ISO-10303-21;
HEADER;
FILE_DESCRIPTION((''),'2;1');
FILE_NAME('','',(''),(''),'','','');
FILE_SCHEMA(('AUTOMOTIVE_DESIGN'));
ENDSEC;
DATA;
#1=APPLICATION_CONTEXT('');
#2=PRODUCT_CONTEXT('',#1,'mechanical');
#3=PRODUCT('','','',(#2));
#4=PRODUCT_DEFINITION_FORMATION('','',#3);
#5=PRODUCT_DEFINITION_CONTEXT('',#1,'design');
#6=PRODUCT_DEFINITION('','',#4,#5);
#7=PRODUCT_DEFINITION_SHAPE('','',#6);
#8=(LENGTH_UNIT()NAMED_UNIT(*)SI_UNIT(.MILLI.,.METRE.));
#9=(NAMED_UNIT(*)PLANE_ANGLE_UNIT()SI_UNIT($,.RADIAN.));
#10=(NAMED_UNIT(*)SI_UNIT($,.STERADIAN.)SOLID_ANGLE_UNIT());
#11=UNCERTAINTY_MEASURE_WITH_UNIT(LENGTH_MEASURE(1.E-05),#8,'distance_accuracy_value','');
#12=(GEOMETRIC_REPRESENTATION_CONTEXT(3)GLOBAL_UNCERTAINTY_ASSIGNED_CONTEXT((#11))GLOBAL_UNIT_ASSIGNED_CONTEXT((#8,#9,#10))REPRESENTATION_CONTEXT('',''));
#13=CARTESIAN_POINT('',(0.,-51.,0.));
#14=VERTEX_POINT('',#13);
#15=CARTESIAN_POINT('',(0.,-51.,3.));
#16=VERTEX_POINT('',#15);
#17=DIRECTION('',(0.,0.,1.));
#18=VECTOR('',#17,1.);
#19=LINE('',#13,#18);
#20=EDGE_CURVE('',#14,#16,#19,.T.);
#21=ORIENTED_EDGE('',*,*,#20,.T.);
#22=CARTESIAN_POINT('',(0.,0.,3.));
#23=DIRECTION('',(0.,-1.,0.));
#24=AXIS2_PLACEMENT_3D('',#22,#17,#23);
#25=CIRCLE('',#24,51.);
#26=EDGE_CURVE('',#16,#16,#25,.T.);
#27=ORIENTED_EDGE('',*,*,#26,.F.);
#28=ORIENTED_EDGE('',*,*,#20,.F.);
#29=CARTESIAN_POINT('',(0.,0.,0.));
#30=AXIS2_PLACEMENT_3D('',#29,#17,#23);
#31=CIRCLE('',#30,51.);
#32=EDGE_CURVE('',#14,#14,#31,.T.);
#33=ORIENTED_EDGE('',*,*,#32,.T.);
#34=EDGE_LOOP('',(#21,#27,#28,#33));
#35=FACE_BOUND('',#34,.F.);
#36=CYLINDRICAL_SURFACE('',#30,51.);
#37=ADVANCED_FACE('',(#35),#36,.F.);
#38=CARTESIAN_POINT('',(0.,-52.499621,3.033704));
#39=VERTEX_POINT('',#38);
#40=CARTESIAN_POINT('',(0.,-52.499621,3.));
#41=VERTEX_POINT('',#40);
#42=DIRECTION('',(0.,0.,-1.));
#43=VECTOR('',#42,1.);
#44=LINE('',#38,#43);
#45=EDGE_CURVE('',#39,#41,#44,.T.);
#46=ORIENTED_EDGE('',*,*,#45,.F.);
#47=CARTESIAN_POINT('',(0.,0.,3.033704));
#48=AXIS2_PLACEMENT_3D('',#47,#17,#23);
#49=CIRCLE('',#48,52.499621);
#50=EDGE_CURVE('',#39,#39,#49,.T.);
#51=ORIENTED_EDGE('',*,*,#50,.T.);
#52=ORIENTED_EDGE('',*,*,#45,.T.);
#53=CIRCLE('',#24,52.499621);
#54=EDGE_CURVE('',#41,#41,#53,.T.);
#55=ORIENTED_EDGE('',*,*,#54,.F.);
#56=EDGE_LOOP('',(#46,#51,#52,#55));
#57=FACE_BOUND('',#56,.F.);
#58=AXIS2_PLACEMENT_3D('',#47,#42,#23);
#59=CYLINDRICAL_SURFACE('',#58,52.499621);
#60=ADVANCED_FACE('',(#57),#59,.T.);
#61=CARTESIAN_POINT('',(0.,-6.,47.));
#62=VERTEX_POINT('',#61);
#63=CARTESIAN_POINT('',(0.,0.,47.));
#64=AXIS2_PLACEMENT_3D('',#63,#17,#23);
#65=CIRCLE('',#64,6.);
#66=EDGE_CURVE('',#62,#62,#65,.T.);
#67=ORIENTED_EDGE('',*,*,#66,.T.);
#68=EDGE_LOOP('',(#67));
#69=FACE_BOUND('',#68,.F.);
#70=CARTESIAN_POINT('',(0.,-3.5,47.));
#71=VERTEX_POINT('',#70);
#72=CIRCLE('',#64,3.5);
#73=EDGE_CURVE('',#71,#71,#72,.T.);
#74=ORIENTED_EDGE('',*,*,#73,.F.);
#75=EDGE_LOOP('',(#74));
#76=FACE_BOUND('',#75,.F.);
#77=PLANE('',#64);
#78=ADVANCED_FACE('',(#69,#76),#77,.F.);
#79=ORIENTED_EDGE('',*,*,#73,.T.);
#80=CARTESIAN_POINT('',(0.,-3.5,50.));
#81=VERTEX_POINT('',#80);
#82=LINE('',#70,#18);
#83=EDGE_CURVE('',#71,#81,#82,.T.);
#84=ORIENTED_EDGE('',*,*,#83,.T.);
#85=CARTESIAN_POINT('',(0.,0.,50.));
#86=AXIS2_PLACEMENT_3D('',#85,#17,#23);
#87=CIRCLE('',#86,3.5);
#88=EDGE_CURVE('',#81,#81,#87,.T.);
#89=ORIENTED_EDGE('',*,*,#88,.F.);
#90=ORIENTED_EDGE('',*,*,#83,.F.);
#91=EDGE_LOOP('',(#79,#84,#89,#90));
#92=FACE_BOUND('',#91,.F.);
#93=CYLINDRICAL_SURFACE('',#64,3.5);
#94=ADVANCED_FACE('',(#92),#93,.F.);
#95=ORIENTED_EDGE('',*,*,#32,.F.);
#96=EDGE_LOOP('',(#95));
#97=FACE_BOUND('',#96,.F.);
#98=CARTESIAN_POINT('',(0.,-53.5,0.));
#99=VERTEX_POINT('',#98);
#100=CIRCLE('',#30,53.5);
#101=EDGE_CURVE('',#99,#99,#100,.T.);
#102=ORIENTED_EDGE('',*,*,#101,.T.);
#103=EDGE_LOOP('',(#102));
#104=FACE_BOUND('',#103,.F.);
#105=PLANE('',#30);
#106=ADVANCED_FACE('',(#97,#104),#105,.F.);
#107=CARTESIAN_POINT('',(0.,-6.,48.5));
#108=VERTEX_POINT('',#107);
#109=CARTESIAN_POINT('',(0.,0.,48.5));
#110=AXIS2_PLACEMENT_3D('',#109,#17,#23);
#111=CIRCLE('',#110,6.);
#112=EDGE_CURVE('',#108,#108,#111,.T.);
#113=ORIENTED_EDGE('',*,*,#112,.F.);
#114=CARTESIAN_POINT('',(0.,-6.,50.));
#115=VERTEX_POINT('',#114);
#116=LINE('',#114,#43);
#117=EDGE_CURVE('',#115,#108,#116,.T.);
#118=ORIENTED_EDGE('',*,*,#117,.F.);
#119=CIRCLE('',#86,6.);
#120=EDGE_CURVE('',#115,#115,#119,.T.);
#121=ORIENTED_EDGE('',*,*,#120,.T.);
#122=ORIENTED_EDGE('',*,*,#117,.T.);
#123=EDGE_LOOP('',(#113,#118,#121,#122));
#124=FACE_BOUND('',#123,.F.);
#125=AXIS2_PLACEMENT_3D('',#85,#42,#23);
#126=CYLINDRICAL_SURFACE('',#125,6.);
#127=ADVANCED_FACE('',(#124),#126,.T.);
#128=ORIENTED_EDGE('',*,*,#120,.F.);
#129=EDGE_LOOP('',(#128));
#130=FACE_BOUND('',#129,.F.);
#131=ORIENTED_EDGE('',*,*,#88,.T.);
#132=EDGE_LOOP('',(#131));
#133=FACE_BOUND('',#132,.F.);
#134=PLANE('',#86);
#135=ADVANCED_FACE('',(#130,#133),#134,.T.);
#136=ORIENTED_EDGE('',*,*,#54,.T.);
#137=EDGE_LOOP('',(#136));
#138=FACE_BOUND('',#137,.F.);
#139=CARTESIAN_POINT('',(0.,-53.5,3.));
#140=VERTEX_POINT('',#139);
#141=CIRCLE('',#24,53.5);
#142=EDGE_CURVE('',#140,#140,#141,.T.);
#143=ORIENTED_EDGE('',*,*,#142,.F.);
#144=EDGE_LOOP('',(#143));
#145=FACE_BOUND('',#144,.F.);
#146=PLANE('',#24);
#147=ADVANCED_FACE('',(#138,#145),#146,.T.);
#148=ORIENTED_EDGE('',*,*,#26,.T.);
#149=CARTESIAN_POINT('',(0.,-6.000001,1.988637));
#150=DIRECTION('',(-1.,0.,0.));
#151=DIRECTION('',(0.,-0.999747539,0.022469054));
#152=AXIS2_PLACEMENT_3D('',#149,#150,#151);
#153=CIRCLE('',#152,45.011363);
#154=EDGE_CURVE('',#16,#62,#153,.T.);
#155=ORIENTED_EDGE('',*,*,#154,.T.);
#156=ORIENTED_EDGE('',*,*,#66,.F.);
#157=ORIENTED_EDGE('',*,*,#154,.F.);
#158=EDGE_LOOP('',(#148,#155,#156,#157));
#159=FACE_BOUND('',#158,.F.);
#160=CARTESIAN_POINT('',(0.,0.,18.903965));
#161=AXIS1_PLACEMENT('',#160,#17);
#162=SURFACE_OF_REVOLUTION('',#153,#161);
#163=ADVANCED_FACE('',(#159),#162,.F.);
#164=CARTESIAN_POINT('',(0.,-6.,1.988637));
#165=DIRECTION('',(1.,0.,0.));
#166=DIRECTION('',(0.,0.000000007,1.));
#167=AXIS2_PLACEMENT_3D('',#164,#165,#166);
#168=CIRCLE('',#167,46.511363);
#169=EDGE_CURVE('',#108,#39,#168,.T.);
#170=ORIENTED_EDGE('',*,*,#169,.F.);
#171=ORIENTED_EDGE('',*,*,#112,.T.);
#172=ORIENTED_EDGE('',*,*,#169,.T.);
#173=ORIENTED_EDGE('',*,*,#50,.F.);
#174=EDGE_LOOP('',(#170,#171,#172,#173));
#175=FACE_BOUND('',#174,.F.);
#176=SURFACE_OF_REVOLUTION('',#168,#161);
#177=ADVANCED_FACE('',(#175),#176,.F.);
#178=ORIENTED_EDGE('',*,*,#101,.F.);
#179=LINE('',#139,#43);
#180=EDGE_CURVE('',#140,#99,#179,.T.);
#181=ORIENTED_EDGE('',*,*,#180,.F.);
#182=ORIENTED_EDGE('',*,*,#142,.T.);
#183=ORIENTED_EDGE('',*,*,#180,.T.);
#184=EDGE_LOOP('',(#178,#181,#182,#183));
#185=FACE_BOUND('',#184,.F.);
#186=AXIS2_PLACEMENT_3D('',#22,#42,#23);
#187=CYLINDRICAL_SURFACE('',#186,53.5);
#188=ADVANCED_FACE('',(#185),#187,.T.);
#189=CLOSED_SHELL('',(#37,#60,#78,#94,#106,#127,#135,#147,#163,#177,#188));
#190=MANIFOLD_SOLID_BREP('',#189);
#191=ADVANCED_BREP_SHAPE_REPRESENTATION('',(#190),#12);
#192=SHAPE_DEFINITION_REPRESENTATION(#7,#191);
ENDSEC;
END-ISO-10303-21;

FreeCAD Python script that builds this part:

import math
import FreeCAD as App
import Part
import Sketcher

V = App.Vector
Q = App.Units.Quantity

doc = App.newDocument("Part")
body = doc.addObject("PartDesign::Body", "Body")

# Sketch on YZ plane
sketch1 = body.newObject("Sketcher::SketchObject", "Sketch")
sketch1.AttachmentSupport = (doc.getObject("YZ_Plane"), [""])
sketch1.MapMode = "FlatFace"
sketch1.addGeometry(Part.LineSegment(V(-53.5, 3, 0), V(-53.5, 0, 0)), False)
sketch1.addGeometry(Part.LineSegment(V(-53.5, 0, 0), V(-51, 0, 0)), False)
sketch1.addGeometry(Part.LineSegment(V(-51, 0, 0), V(-51, 3, 0)), False)
sketch1.addGeometry(Part.ArcOfCircle(Part.Circle(V(-6, 1.989, 0), V(0, 0, 1), 45.011), math.radians(90), math.radians(179)), False)
sketch1.addGeometry(Part.LineSegment(V(-6, 47, 0), V(-3.5, 47, 0)), False)
sketch1.addGeometry(Part.LineSegment(V(-3.5, 47, 0), V(-3.5, 50, 0)), False)
sketch1.addGeometry(Part.LineSegment(V(-3.5, 50, 0), V(-6, 50, 0)), False)
sketch1.addGeometry(Part.LineSegment(V(-6, 50, 0), V(-6, 48.5, 0)), False)
sketch1.addGeometry(Part.ArcOfCircle(Part.Circle(V(-6, 1.989, 0), V(0, 0, 1), 46.511), math.radians(90), math.radians(179)), False)
sketch1.addGeometry(Part.LineSegment(V(-52.5, 3.034, 0), V(-52.5, 3, 0)), False)
sketch1.addGeometry(Part.LineSegment(V(-52.5, 3, 0), V(-53.5, 3, 0)), False)
sketch1.addConstraint(Sketcher.Constraint("Coincident", 0, 2, 1, 1))
sketch1.addConstraint(Sketcher.Constraint("Coincident", 1, 2, 2, 1))
sketch1.addConstraint(Sketcher.Constraint("Coincident", 2, 2, 3, 2))
sketch1.addConstraint(Sketcher.Constraint("Tangent", 3, 1, 4, 1))
sketch1.addConstraint(Sketcher.Constraint("Coincident", 4, 2, 5, 1))
sketch1.addConstraint(Sketcher.Constraint("Coincident", 5, 2, 6, 1))
sketch1.addConstraint(Sketcher.Constraint("Coincident", 6, 2, 7, 1))
sketch1.addConstraint(Sketcher.Constraint("Coincident", 7, 2, 8, 1))
sketch1.addConstraint(Sketcher.Constraint("Coincident", 8, 2, 9, 1))
sketch1.addConstraint(Sketcher.Constraint("Coincident", 9, 2, 10, 1))
sketch1.addConstraint(Sketcher.Constraint("Coincident", 10, 2, 0, 1))
sketch1.addConstraint(Sketcher.Constraint("Vertical", 0))
sketch1.addConstraint(Sketcher.Constraint("Horizontal", 1))
sketch1.addConstraint(Sketcher.Constraint("Vertical", 2))
sketch1.addConstraint(Sketcher.Constraint("Horizontal", 4))
sketch1.addConstraint(Sketcher.Constraint("Vertical", 5))
sketch1.addConstraint(Sketcher.Constraint("Horizontal", 6))
sketch1.addConstraint(Sketcher.Constraint("Vertical", 7))
sketch1.addConstraint(Sketcher.Constraint("Vertical", 9))
sketch1.addConstraint(Sketcher.Constraint("Horizontal", 10))
sketch1.addConstraint(Sketcher.Constraint("Coincident", 8, 3, 3, 3))
sketch1.addConstraint(Sketcher.Constraint("PointOnObject", 0, 2, -1))
sketch1.addConstraint(Sketcher.Constraint("Horizontal", 2, 2, 9, 2))
sketch1.addConstraint(Sketcher.Constraint("Vertical", 3, 1, 6, 2))
sketch1.addConstraint(Sketcher.Constraint("Equal", 1, 4))
sketch1.addConstraint(Sketcher.Constraint("Equal", 2, 5))
sketch1.addConstraint(Sketcher.Constraint("DistanceY", 0, 2, 0, 1, Q("3 mm")))
sketch1.addConstraint(Sketcher.Constraint("DistanceX", 1, 1, 1, 2, Q("2.5 mm")))
sketch1.addConstraint(Sketcher.Constraint("DistanceY", 7, 2, 7, 1, Q("1.5 mm")))
sketch1.addConstraint(Sketcher.Constraint("DistanceX", 3, 3, -1, 1, Q("6.000001 mm")))
sketch1.addConstraint(Sketcher.Constraint("DistanceX", 1, 2, -1, 1, Q("51 mm")))
sketch1.addConstraint(Sketcher.Constraint("DistanceY", -1, 1, 3, 1, Q("47 mm")))
sketch1.addConstraint(Sketcher.Constraint("DistanceX", 10, 2, 10, 1, Q("1.000379 mm")))
revolution = body.newObject("PartDesign::Revolution", "Revolution")
revolution.Profile = sketch1
revolution.ReferenceAxis = (sketch1, ["V_Axis"])
revolution.Angle = 360

doc.recompute()
